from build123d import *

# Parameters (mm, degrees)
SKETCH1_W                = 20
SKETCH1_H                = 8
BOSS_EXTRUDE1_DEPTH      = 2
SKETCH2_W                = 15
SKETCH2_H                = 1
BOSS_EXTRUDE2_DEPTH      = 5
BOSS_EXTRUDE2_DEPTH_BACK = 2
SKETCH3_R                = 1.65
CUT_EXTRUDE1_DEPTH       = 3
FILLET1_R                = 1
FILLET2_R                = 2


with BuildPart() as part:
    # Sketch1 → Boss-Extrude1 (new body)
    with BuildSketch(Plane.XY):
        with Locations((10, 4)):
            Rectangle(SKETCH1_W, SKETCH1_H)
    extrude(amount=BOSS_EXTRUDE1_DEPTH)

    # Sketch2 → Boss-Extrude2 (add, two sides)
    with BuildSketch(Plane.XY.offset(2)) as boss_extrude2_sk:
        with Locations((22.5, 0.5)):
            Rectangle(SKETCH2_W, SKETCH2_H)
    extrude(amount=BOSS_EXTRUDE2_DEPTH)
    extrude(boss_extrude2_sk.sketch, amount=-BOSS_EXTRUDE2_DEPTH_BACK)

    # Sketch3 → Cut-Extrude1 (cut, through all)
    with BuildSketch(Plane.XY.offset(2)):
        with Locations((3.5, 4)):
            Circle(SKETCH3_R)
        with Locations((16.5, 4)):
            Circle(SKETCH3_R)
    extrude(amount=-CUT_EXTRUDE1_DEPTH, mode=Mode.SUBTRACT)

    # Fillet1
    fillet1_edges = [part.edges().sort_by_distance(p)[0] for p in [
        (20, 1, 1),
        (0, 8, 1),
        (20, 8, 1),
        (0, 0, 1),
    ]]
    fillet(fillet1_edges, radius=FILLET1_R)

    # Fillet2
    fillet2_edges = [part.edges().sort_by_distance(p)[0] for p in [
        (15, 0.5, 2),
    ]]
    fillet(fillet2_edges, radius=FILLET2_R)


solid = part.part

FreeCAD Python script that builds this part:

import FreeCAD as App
import Part
import Sketcher
from FreeCAD import Vector
Q = App.Units.Quantity


def edges_at(feature, points):
    """Names of the edges that pass closest to the given points."""
    edges = feature.Shape.Edges
    near = lambda p: min(range(len(edges)), key=lambda i: edges[i].distToShape(Part.Vertex(*p))[0])
    return sorted({f"Edge{near(p) + 1}" for p in points})


def add_polygon(sketch, points):
    """Adds a closed chain of lines whose ends are joined by coincident constraints."""
    first, n = sketch.GeometryCount, len(points)
    for a, b in zip(points, points[1:] + points[:1]):
        sketch.addGeometry(Part.LineSegment(App.Vector(*a, 0), App.Vector(*b, 0)), False)
    for i in range(n):
        sketch.addConstraint(Sketcher.Constraint("Coincident", first + i, 2, first + (i + 1) % n, 1))

doc = App.newDocument("Part")
body = doc.addObject("PartDesign::Body", "Body")

# Sketch on XY plane
sketch1 = doc.addObject("Sketcher::SketchObject", "Sketch")
body.addObject(sketch1)
sketch1.AttachmentSupport = (doc.XY_Plane, [""])
sketch1.MapMode = "FlatFace"
add_polygon(sketch1, [(0, 8), (0, 0), (20, 0), (20, 8)])  # lines 0-3
sketch1.addConstraint(Sketcher.Constraint("Vertical", 0))
sketch1.addConstraint(Sketcher.Constraint("Horizontal", 1))
sketch1.addConstraint(Sketcher.Constraint("Vertical", 2))
sketch1.addConstraint(Sketcher.Constraint("Horizontal", 3))
sketch1.addConstraint(Sketcher.Constraint("Coincident", 0, 2, -1, 1))
sketch1.addConstraint(Sketcher.Constraint("DistanceX", 1, 1, 1, 2, Q("20 mm")))
sketch1.addConstraint(Sketcher.Constraint("DistanceY", 0, 2, 0, 1, Q("8 mm")))
pad1 = doc.addObject("PartDesign::Pad", "Pad")
body.addObject(pad1)
pad1.Profile = sketch1
pad1.Length = 2

# Sketch on XY plane
sketch2 = doc.addObject("Sketcher::SketchObject", "Sketch001")
body.addObject(sketch2)
sketch2.AttachmentSupport = (doc.XY_Plane, [""])
sketch2.MapMode = "FlatFace"
sketch2.AttachmentOffset = App.Placement(Vector(0, 0, 2), App.Rotation())
add_polygon(sketch2, [(15, 1), (15, 0), (30, 0), (30, 1)])  # lines 0-3
sketch2.addConstraint(Sketcher.Constraint("Vertical", 0))
sketch2.addConstraint(Sketcher.Constraint("Horizontal", 1))
sketch2.addConstraint(Sketcher.Constraint("Vertical", 2))
sketch2.addConstraint(Sketcher.Constraint("Horizontal", 3))
sketch2.addConstraint(Sketcher.Constraint("PointOnObject", 0, 2, -1))
sketch2.addConstraint(Sketcher.Constraint("DistanceX", 1, 1, 1, 2, Q("15 mm")))
sketch2.addConstraint(Sketcher.Constraint("DistanceY", 0, 2, 0, 1, Q("1 mm")))
sketch2.addConstraint(Sketcher.Constraint("DistanceX", -1, 1, 0, 2, Q("15 mm")))
pad2 = doc.addObject("PartDesign::Pad", "Pad001")
body.addObject(pad2)
pad2.Profile = sketch2
pad2.Type = "TwoLengths"
pad2.Length = 5
pad2.Length2 = 2

# Sketch on XY plane
sketch3 = doc.addObject("Sketcher::SketchObject", "Sketch002")
body.addObject(sketch3)
sketch3.AttachmentSupport = (doc.XY_Plane, [""])
sketch3.MapMode = "FlatFace"
sketch3.AttachmentOffset = App.Placement(Vector(0, 0, 2), App.Rotation())
sketch3.addGeometry(Part.Circle(Vector(3.5, 4, 0), Vector(0, 0, 1), 1.6), False)
sketch3.addGeometry(Part.Circle(Vector(16.5, 4, 0), Vector(0, 0, 1), 1.6), False)
sketch3.addConstraint(Sketcher.Constraint("Equal", 0, 1))
sketch3.addConstraint(Sketcher.Constraint("Horizontal", 0, 3, 1, 3))
sketch3.addConstraint(Sketcher.Constraint("Diameter", 0, Q("3.3 mm")))
sketch3.addConstraint(Sketcher.Constraint("DistanceY", -1, 1, 0, 3, Q("4 mm")))
sketch3.addConstraint(Sketcher.Constraint("DistanceX", 0, 3, 1, 3, Q("13 mm")))
sketch3.addConstraint(Sketcher.Constraint("DistanceX", -1, 1, 0, 3, Q("3.5 mm")))
pocket1 = doc.addObject("PartDesign::Pocket", "Pocket")
body.addObject(pocket1)
pocket1.Profile = sketch3
pocket1.Type = "ThroughAll"
doc.recompute()

fillet = doc.addObject("PartDesign::Fillet", "Fillet")
body.addObject(fillet)
fillet.Base = (pocket1, edges_at(pocket1, [
    (20, 1, 1),
    (0, 8, 1),
    (20, 8, 1),
    (0, 0, 1),
]))
fillet.Radius = 1
doc.recompute()

fillet2 = doc.addObject("PartDesign::Fillet", "Fillet001")
body.addObject(fillet2)
fillet2.Base = (fillet, edges_at(fillet, [(15, 0.5, 2)]))
fillet2.Radius = 2

doc.recompute()
